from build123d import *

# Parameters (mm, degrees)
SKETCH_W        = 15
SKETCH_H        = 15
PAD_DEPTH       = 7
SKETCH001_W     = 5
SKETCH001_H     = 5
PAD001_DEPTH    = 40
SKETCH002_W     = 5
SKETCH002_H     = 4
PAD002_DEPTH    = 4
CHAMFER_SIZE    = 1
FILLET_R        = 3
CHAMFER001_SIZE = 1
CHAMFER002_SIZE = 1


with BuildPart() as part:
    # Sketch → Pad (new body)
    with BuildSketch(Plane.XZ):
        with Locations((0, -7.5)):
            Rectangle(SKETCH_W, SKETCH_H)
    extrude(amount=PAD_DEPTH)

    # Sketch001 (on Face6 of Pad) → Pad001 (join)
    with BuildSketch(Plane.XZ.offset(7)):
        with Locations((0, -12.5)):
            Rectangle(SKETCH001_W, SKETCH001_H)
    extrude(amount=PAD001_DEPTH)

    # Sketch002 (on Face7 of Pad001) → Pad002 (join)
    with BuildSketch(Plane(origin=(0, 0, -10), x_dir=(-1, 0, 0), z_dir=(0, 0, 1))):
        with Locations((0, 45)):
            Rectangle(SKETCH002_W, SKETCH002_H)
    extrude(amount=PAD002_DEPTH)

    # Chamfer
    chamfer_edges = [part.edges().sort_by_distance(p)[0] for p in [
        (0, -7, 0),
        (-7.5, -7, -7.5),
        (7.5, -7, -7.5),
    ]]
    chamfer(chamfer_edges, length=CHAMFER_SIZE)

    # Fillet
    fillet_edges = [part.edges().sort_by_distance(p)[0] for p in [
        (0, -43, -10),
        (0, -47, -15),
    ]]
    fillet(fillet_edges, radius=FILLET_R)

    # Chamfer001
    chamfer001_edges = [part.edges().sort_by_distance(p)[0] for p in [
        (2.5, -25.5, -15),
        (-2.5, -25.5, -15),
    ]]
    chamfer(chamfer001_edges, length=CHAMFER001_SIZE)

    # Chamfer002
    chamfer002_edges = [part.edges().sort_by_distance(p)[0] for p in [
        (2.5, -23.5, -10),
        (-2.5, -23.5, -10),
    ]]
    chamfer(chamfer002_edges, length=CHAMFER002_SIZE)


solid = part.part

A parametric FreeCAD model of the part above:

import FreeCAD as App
import Part
import Sketcher
Q = App.Units.Quantity


def edges_at(feature, points):
    """Names of the edges that pass closest to the given points."""
    edges = feature.Shape.Edges
    near = lambda p: min(range(len(edges)), key=lambda i: edges[i].distToShape(Part.Vertex(*p))[0])
    return sorted({f"Edge{near(p) + 1}" for p in points})

doc = App.newDocument("Part")
body = doc.addObject("PartDesign::Body", "Body")

# Sketch on XZ plane
sketch1 = body.newObject("Sketcher::SketchObject", "Sketch")
sketch1.AttachmentSupport = (doc.getObject("XZ_Plane"), [""])
sketch1.MapMode = "FlatFace"
sketch1.addGeometry([
    Part.LineSegment(App.Vector(-7.5, 0, 0), App.Vector(-7.5, -15, 0)),
    Part.LineSegment(App.Vector(-7.5, -15, 0), App.Vector(7.5, -15, 0)),
    Part.LineSegment(App.Vector(7.5, -15, 0), App.Vector(7.5, 0, 0)),
    Part.LineSegment(App.Vector(7.5, 0, 0), App.Vector(-7.5, 0, 0)),
], False)
sketch1.addConstraint([
    Sketcher.Constraint("Coincident", 0, 2, 1, 1),
    Sketcher.Constraint("Coincident", 1, 2, 2, 1),
    Sketcher.Constraint("Coincident", 2, 2, 3, 1),
    Sketcher.Constraint("Coincident", 3, 2, 0, 1),
    Sketcher.Constraint("Vertical", 0),
    Sketcher.Constraint("Horizontal", 1),
    Sketcher.Constraint("Vertical", 2),
    Sketcher.Constraint("Horizontal", 3),
    Sketcher.Constraint("Symmetric", 2, 2, 3, 2, -1, 1),
    Sketcher.Constraint("Equal", 3, 0),
    Sketcher.Constraint("DistanceX", 1, 1, 1, 2, Q("15 mm")),
])
pad1 = body.newObject("PartDesign::Pad", "Pad")
pad1.Profile = sketch1
pad1.Length = 7

# Sketch on XZ plane
sketch2 = body.newObject("Sketcher::SketchObject", "Sketch001")
sketch2.AttachmentSupport = (doc.getObject("XZ_Plane"), [""])
sketch2.MapMode = "FlatFace"
sketch2.AttachmentOffset = App.Placement(App.Vector(0, 0, 7), App.Rotation())
sketch2.addGeometry([
    Part.LineSegment(App.Vector(-2.5, -10, 0), App.Vector(-2.5, -15, 0)),
    Part.LineSegment(App.Vector(-2.5, -15, 0), App.Vector(2.5, -15, 0)),
    Part.LineSegment(App.Vector(2.5, -15, 0), App.Vector(2.5, -10, 0)),
    Part.LineSegment(App.Vector(2.5, -10, 0), App.Vector(-2.5, -10, 0)),
], False)
sketch2.addConstraint([
    Sketcher.Constraint("Coincident", 0, 2, 1, 1),
    Sketcher.Constraint("Coincident", 1, 2, 2, 1),
    Sketcher.Constraint("Coincident", 2, 2, 3, 1),
    Sketcher.Constraint("Coincident", 3, 2, 0, 1),
    Sketcher.Constraint("Vertical", 0),
    Sketcher.Constraint("Horizontal", 1),
    Sketcher.Constraint("Vertical", 2),
    Sketcher.Constraint("Horizontal", 3),
    Sketcher.Constraint("Equal", 3, 0),
    Sketcher.Constraint("DistanceX", 1, 1, 1, 2, Q("5 mm")),
    Sketcher.Constraint("DistanceY", 0, 2, -1, 1, Q("15 mm")),
    Sketcher.Constraint("DistanceX", 0, 2, -1, 1, Q("2.5 mm")),
])
pad2 = body.newObject("PartDesign::Pad", "Pad001")
pad2.Profile = sketch2
pad2.Length = 40

# Sketch on XY plane
sketch3 = body.newObject("Sketcher::SketchObject", "Sketch002")
sketch3.AttachmentSupport = (doc.getObject("XY_Plane"), [""])
sketch3.MapMode = "FlatFace"
sketch3.AttachmentOffset = App.Placement(App.Vector(0, 0, -10), App.Rotation())
sketch3.addGeometry([
    Part.LineSegment(App.Vector(2.5, -47, 0), App.Vector(2.5, -43, 0)),
    Part.LineSegment(App.Vector(2.5, -43, 0), App.Vector(-2.5, -43, 0)),
    Part.LineSegment(App.Vector(-2.5, -43, 0), App.Vector(-2.5, -47, 0)),
    Part.LineSegment(App.Vector(-2.5, -47, 0), App.Vector(2.5, -47, 0)),
], False)
sketch3.addConstraint([
    Sketcher.Constraint("Coincident", 0, 2, 1, 1),
    Sketcher.Constraint("Coincident", 1, 2, 2, 1),
    Sketcher.Constraint("Coincident", 2, 2, 3, 1),
    Sketcher.Constraint("Coincident", 3, 2, 0, 1),
    Sketcher.Constraint("Vertical", 0),
    Sketcher.Constraint("Horizontal", 1),
    Sketcher.Constraint("Vertical", 2),
    Sketcher.Constraint("Horizontal", 3),
    Sketcher.Constraint("DistanceX", 1, 2, 1, 1, Q("5 mm")),
    Sketcher.Constraint("DistanceY", 0, 1, 0, 2, Q("4 mm")),
    Sketcher.Constraint("DistanceY", 0, 2, -1, 1, Q("43 mm")),
    Sketcher.Constraint("DistanceX", -1, 1, 0, 2, Q("2.5 mm")),
])
pad3 = body.newObject("PartDesign::Pad", "Pad002")
pad3.Profile = sketch3
pad3.Length = 4
doc.recompute()

chamfer = body.newObject("PartDesign::Chamfer", "Chamfer")
chamfer.Base = (pad3, edges_at(pad3, [(0, -7, 0), (-7.5, -7, -7.5), (7.5, -7, -7.5)]))
chamfer.Size = 1
doc.recompute()

fillet = body.newObject("PartDesign::Fillet", "Fillet")
fillet.Base = (chamfer, edges_at(chamfer, [(0, -43, -10), (0, -47, -15)]))
fillet.Radius = 3
doc.recompute()

chamfer2 = body.newObject("PartDesign::Chamfer", "Chamfer001")
chamfer2.Base = (fillet, edges_at(fillet, [(2.5, -25.5, -15), (-2.5, -25.5, -15)]))
chamfer2.Size = 1
doc.recompute()

chamfer3 = body.newObject("PartDesign::Chamfer", "Chamfer002")
chamfer3.Base = (chamfer2, edges_at(chamfer2, [(2.5, -23.5, -10), (-2.5, -23.5, -10)]))
chamfer3.Size = 1

doc.recompute()
